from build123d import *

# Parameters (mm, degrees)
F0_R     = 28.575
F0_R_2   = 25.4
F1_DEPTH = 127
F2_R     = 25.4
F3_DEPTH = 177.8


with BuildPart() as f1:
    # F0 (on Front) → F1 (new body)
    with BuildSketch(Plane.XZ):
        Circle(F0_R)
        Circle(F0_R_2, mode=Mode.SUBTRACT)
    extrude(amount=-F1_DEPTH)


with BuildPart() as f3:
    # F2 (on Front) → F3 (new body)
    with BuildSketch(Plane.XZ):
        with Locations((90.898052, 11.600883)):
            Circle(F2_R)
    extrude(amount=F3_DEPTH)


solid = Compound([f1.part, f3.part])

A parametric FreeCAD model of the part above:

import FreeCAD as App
import Part
import Sketcher
Q = App.Units.Quantity

doc = App.newDocument("Part")
body = doc.addObject("PartDesign::Body", "Body")

# Sketch on XZ plane
sketch1 = doc.addObject("Sketcher::SketchObject", "Sketch")
body.addObject(sketch1)
sketch1.AttachmentSupport = (doc.XZ_Plane, [""])
sketch1.MapMode = "FlatFace"
sketch1.addGeometry(Part.Circle(App.Vector(0, 0, 0), App.Vector(0, 0, 1), 29), False)
sketch1.addGeometry(Part.Circle(App.Vector(0, 0, 0), App.Vector(0, 0, 1), 25), False)
sketch1.addConstraint(Sketcher.Constraint("Coincident", 0, 3, -1, 1))
sketch1.addConstraint(Sketcher.Constraint("Coincident", 1, 3, -1, 1))
sketch1.addConstraint(Sketcher.Constraint("Diameter", 1, Q("2 in")))
sketch1.addConstraint(Sketcher.Constraint("Diameter", 0, Q("2.25 in")))
pad1 = doc.addObject("PartDesign::Pad", "Pad")
body.addObject(pad1)
pad1.Profile = sketch1
pad1.Length = Q("5 in")
pad1.Reversed = True
body2 = doc.addObject("PartDesign::Body", "Body001")

# Sketch on XZ plane
sketch2 = doc.addObject("Sketcher::SketchObject", "Sketch001")
body2.addObject(sketch2)
sketch2.AttachmentSupport = (doc.getObject("XZ_Plane001"), [""])
sketch2.MapMode = "FlatFace"
sketch2.addGeometry(Part.Circle(App.Vector(91, 12, 0), App.Vector(0, 0, 1), 25), False)
sketch2.addConstraint(Sketcher.Constraint("Diameter", 0, Q("2 in")))
sketch2.addConstraint(Sketcher.Constraint("DistanceX", -1, 1, 0, 3, 90.898052))
sketch2.addConstraint(Sketcher.Constraint("DistanceY", -1, 1, 0, 3, 11.600883))
pad2 = doc.addObject("PartDesign::Pad", "Pad001")
body2.addObject(pad2)
pad2.Profile = sketch2
pad2.Length = Q("7 in")

doc.recompute()
